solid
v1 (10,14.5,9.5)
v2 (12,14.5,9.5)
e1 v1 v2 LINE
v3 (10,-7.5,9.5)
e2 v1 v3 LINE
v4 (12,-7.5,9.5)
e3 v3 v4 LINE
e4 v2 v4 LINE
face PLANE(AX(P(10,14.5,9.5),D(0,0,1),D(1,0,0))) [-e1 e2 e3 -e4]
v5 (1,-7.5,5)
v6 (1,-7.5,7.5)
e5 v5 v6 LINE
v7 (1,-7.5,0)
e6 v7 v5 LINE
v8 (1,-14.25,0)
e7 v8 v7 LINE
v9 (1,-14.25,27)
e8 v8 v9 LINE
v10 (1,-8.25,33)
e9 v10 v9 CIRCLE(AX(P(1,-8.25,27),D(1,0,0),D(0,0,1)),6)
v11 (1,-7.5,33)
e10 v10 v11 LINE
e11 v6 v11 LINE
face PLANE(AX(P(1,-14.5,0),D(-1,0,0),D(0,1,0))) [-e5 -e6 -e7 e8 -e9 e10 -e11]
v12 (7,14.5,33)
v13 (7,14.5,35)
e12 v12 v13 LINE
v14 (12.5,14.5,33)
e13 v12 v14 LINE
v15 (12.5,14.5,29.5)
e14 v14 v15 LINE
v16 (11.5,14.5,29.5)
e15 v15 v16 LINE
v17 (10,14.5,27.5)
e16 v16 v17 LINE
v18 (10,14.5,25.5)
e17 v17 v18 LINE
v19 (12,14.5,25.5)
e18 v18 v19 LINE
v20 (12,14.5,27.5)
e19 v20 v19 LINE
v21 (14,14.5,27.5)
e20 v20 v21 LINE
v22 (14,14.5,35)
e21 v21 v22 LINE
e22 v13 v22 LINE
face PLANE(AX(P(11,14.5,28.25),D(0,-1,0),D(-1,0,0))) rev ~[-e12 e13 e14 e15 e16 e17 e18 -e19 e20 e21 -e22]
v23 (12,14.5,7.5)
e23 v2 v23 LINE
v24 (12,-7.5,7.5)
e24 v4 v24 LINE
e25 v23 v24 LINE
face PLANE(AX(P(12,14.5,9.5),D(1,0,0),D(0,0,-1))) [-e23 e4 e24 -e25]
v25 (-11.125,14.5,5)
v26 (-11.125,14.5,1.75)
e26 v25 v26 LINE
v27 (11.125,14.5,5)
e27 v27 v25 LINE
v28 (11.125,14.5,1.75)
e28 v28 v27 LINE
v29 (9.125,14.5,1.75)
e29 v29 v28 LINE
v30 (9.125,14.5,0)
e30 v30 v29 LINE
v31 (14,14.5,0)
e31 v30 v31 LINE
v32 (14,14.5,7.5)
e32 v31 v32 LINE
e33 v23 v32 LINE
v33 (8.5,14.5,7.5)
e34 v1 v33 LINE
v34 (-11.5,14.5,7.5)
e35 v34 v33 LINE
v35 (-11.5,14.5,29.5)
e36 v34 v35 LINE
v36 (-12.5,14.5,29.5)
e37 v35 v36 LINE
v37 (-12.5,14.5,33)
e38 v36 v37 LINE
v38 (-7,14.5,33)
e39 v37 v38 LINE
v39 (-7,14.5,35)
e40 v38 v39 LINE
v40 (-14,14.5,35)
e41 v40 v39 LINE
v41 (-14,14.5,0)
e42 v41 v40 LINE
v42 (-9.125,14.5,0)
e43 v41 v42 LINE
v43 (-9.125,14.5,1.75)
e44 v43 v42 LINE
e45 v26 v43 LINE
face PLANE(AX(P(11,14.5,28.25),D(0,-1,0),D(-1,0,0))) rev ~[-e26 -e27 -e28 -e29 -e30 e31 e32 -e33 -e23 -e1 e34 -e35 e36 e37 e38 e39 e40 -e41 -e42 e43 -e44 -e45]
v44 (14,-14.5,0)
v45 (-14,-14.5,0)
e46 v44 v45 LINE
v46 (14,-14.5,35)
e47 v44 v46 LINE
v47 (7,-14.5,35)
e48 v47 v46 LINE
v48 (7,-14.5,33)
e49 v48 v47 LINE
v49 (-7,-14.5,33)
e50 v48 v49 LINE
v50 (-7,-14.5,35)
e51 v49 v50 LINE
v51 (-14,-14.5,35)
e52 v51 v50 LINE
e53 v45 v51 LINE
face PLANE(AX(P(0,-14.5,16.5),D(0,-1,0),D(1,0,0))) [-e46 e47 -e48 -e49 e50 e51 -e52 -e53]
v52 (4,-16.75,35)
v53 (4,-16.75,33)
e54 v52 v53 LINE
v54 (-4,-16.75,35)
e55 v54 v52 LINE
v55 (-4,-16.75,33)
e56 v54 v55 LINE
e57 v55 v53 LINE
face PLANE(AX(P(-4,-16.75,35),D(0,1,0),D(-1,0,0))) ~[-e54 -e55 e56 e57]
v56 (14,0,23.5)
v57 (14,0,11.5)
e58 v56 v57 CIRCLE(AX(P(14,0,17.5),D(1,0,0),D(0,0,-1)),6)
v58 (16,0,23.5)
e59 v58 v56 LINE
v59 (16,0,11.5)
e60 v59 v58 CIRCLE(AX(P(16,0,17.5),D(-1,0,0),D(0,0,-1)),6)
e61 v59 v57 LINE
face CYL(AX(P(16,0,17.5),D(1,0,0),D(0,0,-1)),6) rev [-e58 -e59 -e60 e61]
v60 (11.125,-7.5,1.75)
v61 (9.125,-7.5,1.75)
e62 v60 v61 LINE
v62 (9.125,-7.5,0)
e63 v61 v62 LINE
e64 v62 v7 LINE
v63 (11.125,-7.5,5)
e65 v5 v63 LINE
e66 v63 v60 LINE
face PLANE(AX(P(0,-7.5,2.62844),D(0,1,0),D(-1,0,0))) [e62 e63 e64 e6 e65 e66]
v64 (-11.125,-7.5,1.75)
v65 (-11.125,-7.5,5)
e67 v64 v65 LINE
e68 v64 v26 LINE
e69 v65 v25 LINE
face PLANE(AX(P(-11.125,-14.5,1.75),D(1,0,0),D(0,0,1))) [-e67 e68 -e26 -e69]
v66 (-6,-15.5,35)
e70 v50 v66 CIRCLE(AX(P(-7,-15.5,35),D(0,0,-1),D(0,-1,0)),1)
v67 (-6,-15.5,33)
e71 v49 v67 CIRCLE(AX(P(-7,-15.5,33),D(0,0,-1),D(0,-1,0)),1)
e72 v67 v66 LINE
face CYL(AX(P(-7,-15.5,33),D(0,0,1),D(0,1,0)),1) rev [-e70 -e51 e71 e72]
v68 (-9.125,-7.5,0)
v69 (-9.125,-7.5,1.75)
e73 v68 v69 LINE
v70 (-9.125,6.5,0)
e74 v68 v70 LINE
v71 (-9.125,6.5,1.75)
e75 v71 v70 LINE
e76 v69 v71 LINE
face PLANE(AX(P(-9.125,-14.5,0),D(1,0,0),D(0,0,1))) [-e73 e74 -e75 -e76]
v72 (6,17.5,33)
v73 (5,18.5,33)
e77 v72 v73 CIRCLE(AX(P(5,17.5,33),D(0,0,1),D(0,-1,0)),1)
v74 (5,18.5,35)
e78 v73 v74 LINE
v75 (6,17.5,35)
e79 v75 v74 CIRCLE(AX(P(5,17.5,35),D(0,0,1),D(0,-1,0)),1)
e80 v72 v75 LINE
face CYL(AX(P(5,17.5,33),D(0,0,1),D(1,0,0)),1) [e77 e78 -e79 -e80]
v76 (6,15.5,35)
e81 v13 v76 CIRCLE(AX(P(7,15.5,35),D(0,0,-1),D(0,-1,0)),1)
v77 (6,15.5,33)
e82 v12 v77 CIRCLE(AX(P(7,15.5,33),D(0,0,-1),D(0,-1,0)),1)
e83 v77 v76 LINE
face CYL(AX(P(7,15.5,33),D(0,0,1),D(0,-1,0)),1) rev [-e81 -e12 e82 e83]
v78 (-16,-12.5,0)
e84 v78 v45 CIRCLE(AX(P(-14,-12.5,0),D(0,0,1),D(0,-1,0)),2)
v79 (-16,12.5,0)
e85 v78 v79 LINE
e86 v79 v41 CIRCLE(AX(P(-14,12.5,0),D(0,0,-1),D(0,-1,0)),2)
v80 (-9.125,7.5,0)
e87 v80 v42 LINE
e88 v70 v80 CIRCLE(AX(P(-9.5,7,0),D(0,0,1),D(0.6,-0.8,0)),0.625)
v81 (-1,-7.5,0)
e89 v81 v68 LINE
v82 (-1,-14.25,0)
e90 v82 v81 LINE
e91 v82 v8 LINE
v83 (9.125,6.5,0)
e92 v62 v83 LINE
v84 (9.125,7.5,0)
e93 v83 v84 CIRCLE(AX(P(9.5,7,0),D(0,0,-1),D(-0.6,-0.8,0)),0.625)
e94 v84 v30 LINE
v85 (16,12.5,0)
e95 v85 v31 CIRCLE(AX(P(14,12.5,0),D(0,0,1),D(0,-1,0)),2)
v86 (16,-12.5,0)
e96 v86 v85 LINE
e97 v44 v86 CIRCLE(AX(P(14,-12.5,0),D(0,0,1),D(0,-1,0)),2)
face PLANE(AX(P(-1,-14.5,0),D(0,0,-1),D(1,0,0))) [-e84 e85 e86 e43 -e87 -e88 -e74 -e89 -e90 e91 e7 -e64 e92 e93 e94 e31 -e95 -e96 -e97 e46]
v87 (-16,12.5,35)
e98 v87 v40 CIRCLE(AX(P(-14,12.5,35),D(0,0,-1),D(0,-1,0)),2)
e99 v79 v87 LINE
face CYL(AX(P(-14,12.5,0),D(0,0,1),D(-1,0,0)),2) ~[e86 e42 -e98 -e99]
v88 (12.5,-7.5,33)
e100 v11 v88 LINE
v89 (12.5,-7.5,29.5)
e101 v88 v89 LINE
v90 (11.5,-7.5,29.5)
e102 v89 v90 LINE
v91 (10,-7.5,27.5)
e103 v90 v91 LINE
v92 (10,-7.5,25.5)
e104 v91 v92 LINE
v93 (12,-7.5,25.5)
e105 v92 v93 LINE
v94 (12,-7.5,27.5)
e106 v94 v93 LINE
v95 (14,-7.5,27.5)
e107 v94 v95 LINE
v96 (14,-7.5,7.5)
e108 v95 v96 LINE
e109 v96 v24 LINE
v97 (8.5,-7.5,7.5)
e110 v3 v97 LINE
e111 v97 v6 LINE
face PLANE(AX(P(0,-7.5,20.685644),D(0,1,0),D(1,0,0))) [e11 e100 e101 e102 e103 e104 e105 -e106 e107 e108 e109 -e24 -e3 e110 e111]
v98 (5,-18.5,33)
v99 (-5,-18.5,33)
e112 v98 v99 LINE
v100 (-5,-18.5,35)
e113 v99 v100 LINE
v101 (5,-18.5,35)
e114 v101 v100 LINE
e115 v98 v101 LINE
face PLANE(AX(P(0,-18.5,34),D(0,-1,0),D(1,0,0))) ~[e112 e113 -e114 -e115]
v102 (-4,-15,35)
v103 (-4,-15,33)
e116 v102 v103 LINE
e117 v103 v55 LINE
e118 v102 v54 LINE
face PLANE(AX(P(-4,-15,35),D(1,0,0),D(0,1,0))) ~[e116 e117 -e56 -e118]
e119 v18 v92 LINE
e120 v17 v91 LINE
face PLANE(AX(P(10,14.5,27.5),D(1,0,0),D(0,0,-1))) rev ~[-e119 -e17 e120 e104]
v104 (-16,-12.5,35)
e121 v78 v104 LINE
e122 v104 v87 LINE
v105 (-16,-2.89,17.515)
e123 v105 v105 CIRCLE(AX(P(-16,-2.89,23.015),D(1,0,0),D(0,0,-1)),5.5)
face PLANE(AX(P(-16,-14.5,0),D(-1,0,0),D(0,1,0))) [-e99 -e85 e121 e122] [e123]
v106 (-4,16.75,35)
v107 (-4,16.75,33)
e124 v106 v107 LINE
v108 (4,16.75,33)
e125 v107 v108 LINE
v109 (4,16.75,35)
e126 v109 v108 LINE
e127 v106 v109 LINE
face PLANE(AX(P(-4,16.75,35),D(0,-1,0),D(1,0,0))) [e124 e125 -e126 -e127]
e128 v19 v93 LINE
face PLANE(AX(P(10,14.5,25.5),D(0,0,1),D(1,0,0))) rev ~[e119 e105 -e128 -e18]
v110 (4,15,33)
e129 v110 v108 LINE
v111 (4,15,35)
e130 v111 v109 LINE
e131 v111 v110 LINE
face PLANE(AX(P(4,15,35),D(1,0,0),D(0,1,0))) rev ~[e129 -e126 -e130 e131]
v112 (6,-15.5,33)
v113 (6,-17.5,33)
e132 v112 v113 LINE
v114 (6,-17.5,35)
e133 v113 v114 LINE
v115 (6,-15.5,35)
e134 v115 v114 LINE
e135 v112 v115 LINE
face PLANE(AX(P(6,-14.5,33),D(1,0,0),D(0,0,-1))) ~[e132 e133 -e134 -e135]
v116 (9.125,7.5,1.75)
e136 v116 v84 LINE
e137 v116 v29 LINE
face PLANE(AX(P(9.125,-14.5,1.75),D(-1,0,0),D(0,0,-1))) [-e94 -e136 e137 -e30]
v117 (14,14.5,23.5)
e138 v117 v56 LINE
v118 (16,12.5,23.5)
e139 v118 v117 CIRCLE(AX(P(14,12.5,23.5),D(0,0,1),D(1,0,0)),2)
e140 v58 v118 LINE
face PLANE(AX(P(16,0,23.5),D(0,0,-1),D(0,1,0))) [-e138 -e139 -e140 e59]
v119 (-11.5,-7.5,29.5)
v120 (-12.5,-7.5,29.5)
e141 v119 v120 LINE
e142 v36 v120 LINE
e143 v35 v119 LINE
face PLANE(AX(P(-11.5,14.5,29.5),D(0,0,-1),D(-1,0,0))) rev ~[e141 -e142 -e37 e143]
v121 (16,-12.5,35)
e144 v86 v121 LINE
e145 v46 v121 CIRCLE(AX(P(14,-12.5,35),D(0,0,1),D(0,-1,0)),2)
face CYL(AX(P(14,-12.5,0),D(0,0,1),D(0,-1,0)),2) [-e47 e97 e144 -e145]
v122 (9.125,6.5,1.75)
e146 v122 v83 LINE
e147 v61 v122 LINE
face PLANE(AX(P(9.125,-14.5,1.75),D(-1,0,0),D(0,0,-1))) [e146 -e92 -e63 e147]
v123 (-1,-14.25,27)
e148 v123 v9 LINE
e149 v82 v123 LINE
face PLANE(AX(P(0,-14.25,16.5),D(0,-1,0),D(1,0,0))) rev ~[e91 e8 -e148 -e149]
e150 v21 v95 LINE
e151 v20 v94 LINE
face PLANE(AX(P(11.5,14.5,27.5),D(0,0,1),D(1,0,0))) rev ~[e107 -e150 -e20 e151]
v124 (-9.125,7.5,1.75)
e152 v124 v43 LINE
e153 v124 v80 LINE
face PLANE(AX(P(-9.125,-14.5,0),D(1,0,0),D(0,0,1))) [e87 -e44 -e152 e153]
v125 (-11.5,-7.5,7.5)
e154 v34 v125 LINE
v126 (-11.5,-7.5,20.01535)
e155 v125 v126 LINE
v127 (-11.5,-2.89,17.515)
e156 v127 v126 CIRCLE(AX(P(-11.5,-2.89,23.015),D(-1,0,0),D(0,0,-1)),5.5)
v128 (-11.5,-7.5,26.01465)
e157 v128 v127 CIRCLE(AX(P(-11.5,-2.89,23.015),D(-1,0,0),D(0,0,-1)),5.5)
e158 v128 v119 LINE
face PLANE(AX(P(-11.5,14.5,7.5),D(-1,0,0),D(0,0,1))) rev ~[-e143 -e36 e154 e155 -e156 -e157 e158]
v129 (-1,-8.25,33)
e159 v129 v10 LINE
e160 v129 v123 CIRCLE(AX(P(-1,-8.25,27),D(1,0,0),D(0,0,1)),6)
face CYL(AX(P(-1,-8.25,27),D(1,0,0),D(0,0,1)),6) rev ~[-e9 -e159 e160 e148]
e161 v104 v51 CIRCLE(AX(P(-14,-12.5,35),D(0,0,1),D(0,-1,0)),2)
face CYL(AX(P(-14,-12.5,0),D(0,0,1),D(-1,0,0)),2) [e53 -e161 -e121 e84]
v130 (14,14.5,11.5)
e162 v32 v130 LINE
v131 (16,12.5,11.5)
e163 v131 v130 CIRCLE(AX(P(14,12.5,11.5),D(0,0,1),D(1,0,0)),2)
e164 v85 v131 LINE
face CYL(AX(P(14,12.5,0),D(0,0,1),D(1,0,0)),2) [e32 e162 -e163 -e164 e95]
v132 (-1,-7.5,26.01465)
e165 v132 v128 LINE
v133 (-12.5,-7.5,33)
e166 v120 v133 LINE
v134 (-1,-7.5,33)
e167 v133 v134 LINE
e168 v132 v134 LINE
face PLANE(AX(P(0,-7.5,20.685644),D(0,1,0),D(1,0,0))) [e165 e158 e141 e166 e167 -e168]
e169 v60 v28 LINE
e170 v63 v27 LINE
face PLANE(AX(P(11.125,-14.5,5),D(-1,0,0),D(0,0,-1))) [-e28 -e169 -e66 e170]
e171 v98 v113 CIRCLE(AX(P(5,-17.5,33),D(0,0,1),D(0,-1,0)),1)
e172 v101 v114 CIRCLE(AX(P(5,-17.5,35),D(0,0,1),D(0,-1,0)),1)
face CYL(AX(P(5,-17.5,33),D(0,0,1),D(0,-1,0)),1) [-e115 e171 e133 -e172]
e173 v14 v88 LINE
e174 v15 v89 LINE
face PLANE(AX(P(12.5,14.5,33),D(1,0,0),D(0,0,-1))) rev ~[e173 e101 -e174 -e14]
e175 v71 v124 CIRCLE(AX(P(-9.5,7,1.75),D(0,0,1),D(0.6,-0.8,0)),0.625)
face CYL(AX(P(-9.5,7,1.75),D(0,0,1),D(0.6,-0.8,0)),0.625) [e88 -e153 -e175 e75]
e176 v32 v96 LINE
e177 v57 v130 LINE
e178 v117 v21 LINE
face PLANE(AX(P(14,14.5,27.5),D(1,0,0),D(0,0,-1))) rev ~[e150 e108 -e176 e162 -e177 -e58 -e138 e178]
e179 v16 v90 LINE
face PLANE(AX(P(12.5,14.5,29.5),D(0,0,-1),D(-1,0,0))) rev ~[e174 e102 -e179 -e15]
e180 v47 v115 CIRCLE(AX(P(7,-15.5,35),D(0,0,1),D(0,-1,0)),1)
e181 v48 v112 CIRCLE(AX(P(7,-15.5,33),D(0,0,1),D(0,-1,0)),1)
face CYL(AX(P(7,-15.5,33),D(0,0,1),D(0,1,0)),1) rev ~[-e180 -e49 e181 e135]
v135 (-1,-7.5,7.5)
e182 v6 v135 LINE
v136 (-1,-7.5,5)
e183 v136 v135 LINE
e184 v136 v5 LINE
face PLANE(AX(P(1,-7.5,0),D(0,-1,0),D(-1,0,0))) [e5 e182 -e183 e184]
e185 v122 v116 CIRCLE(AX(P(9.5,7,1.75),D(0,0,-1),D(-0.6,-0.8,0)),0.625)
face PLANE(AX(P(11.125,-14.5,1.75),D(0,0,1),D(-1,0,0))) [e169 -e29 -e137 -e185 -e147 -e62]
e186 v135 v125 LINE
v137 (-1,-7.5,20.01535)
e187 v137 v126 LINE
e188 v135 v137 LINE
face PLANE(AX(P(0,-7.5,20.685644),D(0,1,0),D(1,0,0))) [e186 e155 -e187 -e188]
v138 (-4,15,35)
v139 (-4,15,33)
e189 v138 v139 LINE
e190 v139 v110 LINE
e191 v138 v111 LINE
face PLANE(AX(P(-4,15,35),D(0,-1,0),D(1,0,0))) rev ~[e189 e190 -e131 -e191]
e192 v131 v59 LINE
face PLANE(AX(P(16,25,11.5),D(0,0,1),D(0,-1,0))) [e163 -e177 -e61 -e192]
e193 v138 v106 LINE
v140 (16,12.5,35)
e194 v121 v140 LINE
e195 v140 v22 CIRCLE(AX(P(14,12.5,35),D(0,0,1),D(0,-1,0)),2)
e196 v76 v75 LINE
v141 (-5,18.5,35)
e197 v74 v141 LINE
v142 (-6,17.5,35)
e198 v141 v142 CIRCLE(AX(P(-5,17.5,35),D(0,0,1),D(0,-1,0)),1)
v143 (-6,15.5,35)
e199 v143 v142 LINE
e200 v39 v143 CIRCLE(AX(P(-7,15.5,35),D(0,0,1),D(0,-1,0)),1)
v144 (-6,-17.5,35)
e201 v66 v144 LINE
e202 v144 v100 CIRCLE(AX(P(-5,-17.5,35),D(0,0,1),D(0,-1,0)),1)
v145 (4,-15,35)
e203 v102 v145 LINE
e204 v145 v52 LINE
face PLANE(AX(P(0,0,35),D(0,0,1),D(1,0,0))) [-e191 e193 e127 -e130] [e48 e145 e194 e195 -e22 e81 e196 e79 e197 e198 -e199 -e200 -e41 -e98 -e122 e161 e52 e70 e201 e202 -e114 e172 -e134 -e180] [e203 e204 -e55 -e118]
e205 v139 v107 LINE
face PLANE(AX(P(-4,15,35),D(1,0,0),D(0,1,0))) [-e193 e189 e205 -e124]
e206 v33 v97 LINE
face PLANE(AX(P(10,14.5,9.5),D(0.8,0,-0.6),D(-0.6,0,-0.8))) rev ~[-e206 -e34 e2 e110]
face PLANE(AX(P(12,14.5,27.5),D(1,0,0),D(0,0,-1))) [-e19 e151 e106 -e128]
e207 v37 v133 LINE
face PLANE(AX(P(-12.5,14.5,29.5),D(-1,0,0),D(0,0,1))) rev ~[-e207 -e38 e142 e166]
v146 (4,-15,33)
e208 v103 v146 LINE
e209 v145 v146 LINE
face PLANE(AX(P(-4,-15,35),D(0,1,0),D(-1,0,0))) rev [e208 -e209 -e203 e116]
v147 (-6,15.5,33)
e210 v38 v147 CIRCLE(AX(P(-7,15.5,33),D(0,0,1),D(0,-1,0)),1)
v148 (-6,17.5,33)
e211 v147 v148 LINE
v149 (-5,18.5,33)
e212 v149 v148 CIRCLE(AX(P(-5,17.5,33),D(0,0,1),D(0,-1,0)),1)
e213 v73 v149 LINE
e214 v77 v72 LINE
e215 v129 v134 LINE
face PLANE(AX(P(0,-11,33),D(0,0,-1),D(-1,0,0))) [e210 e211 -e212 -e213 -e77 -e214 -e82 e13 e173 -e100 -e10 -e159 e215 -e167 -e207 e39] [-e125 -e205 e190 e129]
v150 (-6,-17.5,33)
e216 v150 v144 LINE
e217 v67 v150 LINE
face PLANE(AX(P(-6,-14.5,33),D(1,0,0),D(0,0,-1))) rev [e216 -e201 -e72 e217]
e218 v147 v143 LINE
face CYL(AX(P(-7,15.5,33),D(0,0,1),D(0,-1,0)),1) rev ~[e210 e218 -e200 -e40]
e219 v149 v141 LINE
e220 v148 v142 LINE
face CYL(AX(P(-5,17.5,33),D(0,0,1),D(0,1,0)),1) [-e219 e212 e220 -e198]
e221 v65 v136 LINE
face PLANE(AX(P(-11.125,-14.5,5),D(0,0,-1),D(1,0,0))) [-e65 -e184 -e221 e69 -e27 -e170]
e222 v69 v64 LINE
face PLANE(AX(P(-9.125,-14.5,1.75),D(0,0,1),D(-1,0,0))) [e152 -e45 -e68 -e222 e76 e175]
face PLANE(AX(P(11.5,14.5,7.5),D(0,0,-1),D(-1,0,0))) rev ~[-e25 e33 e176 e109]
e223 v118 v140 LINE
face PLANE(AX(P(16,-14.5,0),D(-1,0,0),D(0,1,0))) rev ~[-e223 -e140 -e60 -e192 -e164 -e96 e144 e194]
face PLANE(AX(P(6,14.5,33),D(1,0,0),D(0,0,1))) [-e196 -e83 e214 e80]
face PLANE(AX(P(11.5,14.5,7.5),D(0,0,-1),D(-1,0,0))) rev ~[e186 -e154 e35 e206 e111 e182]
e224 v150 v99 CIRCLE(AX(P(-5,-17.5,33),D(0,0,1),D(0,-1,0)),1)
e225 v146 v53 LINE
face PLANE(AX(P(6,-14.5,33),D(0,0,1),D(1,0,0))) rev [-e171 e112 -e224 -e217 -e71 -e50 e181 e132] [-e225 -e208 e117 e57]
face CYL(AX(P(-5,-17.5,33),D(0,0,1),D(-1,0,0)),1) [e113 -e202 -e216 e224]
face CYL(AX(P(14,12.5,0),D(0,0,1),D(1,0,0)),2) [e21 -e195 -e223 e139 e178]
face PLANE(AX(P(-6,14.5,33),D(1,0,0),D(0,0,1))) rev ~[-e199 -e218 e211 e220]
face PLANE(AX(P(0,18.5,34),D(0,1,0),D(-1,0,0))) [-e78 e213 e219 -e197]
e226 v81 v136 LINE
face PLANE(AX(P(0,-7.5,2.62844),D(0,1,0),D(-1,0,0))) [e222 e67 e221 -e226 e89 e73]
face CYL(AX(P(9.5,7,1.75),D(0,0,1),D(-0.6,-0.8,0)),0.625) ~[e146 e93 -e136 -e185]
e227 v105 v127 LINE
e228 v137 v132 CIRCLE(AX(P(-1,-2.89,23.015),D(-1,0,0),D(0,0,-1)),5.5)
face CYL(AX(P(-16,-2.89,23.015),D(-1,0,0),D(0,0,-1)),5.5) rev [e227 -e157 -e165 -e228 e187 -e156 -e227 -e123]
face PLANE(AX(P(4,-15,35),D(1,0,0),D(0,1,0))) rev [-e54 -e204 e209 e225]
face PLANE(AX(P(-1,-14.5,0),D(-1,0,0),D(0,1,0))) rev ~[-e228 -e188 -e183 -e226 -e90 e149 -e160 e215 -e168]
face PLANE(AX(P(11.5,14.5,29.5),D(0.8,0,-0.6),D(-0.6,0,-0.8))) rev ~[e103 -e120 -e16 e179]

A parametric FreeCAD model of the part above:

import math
import FreeCAD as App
import Part
import Sketcher
from FreeCAD import Vector
Q = App.Units.Quantity


def edges_at(feature, points):
    """Names of the edges that pass closest to the given points."""
    edges = feature.Shape.Edges
    near = lambda p: min(range(len(edges)), key=lambda i: edges[i].distToShape(Part.Vertex(*p))[0])
    return sorted({f"Edge{near(p) + 1}" for p in points})

doc = App.newDocument("Part")
params = doc.addObject("Spreadsheet::Sheet", "Params")
for row, (alias, value) in enumerate([
    ("sketch1_width", "32 mm"),
    ("sketch1_height", "29 mm"),
    ("pad1_length", "35 mm"),
    ("fillet_radius", "2 mm"),
    ("sketch2_width", "2 mm"),
    ("sketch2_width2", "18.25 mm"),
    ("sketch2_height", "1.75 mm"),
    ("sketch3_width", "2 mm"),
    ("sketch3_width2", "18.25 mm"),
    ("sketch3_height", "1.75 mm"),
    ("pad2_length", "7 mm"),
    ("sketch4_height", "1 mm"),
    ("pad3_length", "1.75 mm"),
    ("sketch5_width", "2 mm"),
    ("sketch5_height", "7 mm"),
    ("pocket2_length", "33 mm"),
    ("sketch6_width", "23 mm"),
    ("sketch6_width2", "1 mm"),
    ("sketch6_height", "22 mm"),
    ("sketch6_height2", "3.5 mm"),
    ("pocket3_length", "22 mm"),
    ("sketch7_width", "2 mm"),
    ("sketch7_height", "33 mm"),
    ("pad4_length", "0.25 mm"),
    ("fillet2_radius", "6 mm"),
    ("sketch8_radius", "6 mm"),
    ("sketch8_width", "25 mm"),
    ("sketch9_height", "20 mm"),
    ("sketch9_width", "2.5 mm"),
    ("pocket5_length", "22 mm"),
    ("sketch10_width", "2 mm"),
    ("pad5_length", "22 mm"),
    ("sketch11_height", "2 mm"),
    ("sketch11_width", "1.5 mm"),
    ("pad6_length", "22 mm"),
    ("sketch12_width", "12 mm"),
    ("sketch12_height", "2 mm"),
    ("pad7_length", "4 mm"),
    ("sketch13_width", "8 mm"),
    ("sketch13_height", "1.75 mm"),
    ("pocket6_length", "2 mm"),
    ("fillet3_radius", "1 mm"),
    ("sketch14_diameter", "11 mm"),
    ("pocket7_length", "15 mm"),
], start=1):
    params.set(f"A{row}", alias)
    params.set(f"B{row}", "=" + value)
    params.setAlias(f"B{row}", alias)

body = doc.addObject("PartDesign::Body", "Body")

# Sketch on XY plane
sketch1 = doc.addObject("Sketcher::SketchObject", "Sketch")
body.addObject(sketch1)
sketch1.AttachmentSupport = (doc.XY_Plane, [""])
sketch1.MapMode = "FlatFace"
sketch1.addGeometry(Part.LineSegment(Vector(-16, 14, 0), Vector(-16, -14, 0)), False)
sketch1.addGeometry(Part.LineSegment(Vector(-16, -14, 0), Vector(16, -14, 0)), False)
sketch1.addGeometry(Part.LineSegment(Vector(16, -14, 0), Vector(16, 14, 0)), False)
sketch1.addGeometry(Part.LineSegment(Vector(16, 14, 0), Vector(-16, 14, 0)), False)
sketch1.addConstraint(Sketcher.Constraint("Coincident", 0, 2, 1, 1))
sketch1.addConstraint(Sketcher.Constraint("Coincident", 1, 2, 2, 1))
sketch1.addConstraint(Sketcher.Constraint("Coincident", 2, 2, 3, 1))
sketch1.addConstraint(Sketcher.Constraint("Coincident", 3, 2, 0, 1))
sketch1.addConstraint(Sketcher.Constraint("Vertical", 0))
sketch1.addConstraint(Sketcher.Constraint("Horizontal", 1))
sketch1.addConstraint(Sketcher.Constraint("Vertical", 2))
sketch1.addConstraint(Sketcher.Constraint("Horizontal", 3))
sketch1.addConstraint(Sketcher.Constraint("Symmetric", 0, 2, 2, 2, -1, 1))
sketch1.addConstraint(Sketcher.Constraint("DistanceX", 1, 1, 1, 2, Q("32 mm")))
sketch1.addConstraint(Sketcher.Constraint("DistanceY", 0, 2, 0, 1, Q("29 mm")))
sketch1.setExpression("Constraints[9]", "Params.sketch1_width")
sketch1.setExpression("Constraints[10]", "Params.sketch1_height")
pad1 = doc.addObject("PartDesign::Pad", "Pad")
body.addObject(pad1)
pad1.Profile = sketch1
pad1.setExpression("Length", "Params.pad1_length")
doc.recompute()

fillet = doc.addObject("PartDesign::Fillet", "Fillet")
body.addObject(fillet)
fillet.Base = (pad1, edges_at(pad1, [
    (16, -14.5, 17.5),
    (-16, -14.5, 17.5),
    (-16, 14.5, 17.5),
    (16, 14.5, 17.5),
]))
fillet.setExpression("Radius", "Params.fillet_radius")

# Sketch on XZ plane
sketch2 = doc.addObject("Sketcher::SketchObject", "Sketch001")
body.addObject(sketch2)
sketch2.AttachmentSupport = (doc.XZ_Plane, [""])
sketch2.MapMode = "FlatFace"
sketch2.AttachmentOffset = App.Placement(Vector(0, 0, 14.5), App.Rotation())
sketch2.addGeometry(Part.LineSegment(Vector(-9.1, 1.8, 0), Vector(-9.1, 0, 0)), False)
sketch2.addGeometry(Part.LineSegment(Vector(-9.1, 0, 0), Vector(9.1, 0, 0)), False)
sketch2.addGeometry(Part.LineSegment(Vector(9.1, 0, 0), Vector(9.1, 1.8, 0)), False)
sketch2.addGeometry(Part.LineSegment(Vector(9.1, 1.8, 0), Vector(11.1, 1.8, 0)), False)
sketch2.addGeometry(Part.LineSegment(Vector(11.1, 1.8, 0), Vector(11.1, 5, 0)), False)
sketch2.addGeometry(Part.LineSegment(Vector(11.1, 5, 0), Vector(-11.1, 5, 0)), False)
sketch2.addGeometry(Part.LineSegment(Vector(-11.1, 5, 0), Vector(-11.1, 1.8, 0)), False)
sketch2.addGeometry(Part.LineSegment(Vector(-11.1, 1.8, 0), Vector(-9.1, 1.8, 0)), False)
sketch2.addConstraint(Sketcher.Constraint("Coincident", 0, 2, 1, 1))
sketch2.addConstraint(Sketcher.Constraint("Coincident", 1, 2, 2, 1))
sketch2.addConstraint(Sketcher.Constraint("Coincident", 2, 2, 3, 1))
sketch2.addConstraint(Sketcher.Constraint("Coincident", 3, 2, 4, 1))
sketch2.addConstraint(Sketcher.Constraint("Coincident", 4, 2, 5, 1))
sketch2.addConstraint(Sketcher.Constraint("Coincident", 5, 2, 6, 1))
sketch2.addConstraint(Sketcher.Constraint("Coincident", 6, 2, 7, 1))
sketch2.addConstraint(Sketcher.Constraint("Coincident", 7, 2, 0, 1))
sketch2.addConstraint(Sketcher.Constraint("Vertical", 0))
sketch2.addConstraint(Sketcher.Constraint("Horizontal", 1))
sketch2.addConstraint(Sketcher.Constraint("Vertical", 2))
sketch2.addConstraint(Sketcher.Constraint("Horizontal", 3))
sketch2.addConstraint(Sketcher.Constraint("Vertical", 4))
sketch2.addConstraint(Sketcher.Constraint("Horizontal", 5))
sketch2.addConstraint(Sketcher.Constraint("Vertical", 6))
sketch2.addConstraint(Sketcher.Constraint("Horizontal", 7))
sketch2.addConstraint(Sketcher.Constraint("Symmetric", 0, 2, 1, 2, -1, 1))
sketch2.addConstraint(Sketcher.Constraint("Symmetric", 3, 2, 6, 2, -2))
sketch2.addConstraint(Sketcher.Constraint("DistanceX", 3, 1, 3, 2, Q("2 mm")))
sketch2.addConstraint(Sketcher.Constraint("DistanceY", -1, 1, 4, 2, Q("5 mm")))
sketch2.addConstraint(Sketcher.Constraint("DistanceX", 1, 1, 1, 2, Q("18.25 mm")))
sketch2.addConstraint(Sketcher.Constraint("DistanceY", 0, 2, 0, 1, Q("1.75 mm")))
sketch2.setExpression("Constraints[18]", "Params.sketch2_width")
sketch2.setExpression("Constraints[20]", "Params.sketch2_width2")
sketch2.setExpression("Constraints[21]", "Params.sketch2_height")
pocket1 = doc.addObject("PartDesign::Pocket", "Pocket")
body.addObject(pocket1)
pocket1.Profile = sketch2
pocket1.Type = "ThroughAll"
pocket1.Midplane = True

# Sketch on XZ plane
sketch3 = doc.addObject("Sketcher::SketchObject", "Sketch002")
body.addObject(sketch3)
sketch3.AttachmentSupport = (doc.XZ_Plane, [""])
sketch3.MapMode = "FlatFace"
sketch3.AttachmentOffset = App.Placement(Vector(0, 0, 14.5), App.Rotation())
sketch3.addGeometry(Part.LineSegment(Vector(-9.1, 1.8, 0), Vector(-9.1, 0, 0)), False)
sketch3.addGeometry(Part.LineSegment(Vector(-9.1, 0, 0), Vector(9.1, 0, 0)), False)
sketch3.addGeometry(Part.LineSegment(Vector(9.1, 0, 0), Vector(9.1, 1.8, 0)), False)
sketch3.addGeometry(Part.LineSegment(Vector(9.1, 1.8, 0), Vector(11.1, 1.8, 0)), False)
sketch3.addGeometry(Part.LineSegment(Vector(11.1, 1.8, 0), Vector(11.1, 5, 0)), False)
sketch3.addGeometry(Part.LineSegment(Vector(11.1, 5, 0), Vector(-11.1, 5, 0)), False)
sketch3.addGeometry(Part.LineSegment(Vector(-11.1, 5, 0), Vector(-11.1, 1.8, 0)), False)
sketch3.addGeometry(Part.LineSegment(Vector(-11.1, 1.8, 0), Vector(-9.1, 1.8, 0)), False)
sketch3.addConstraint(Sketcher.Constraint("Coincident", 0, 2, 1, 1))
sketch3.addConstraint(Sketcher.Constraint("Coincident", 1, 2, 2, 1))
sketch3.addConstraint(Sketcher.Constraint("Coincident", 2, 2, 3, 1))
sketch3.addConstraint(Sketcher.Constraint("Coincident", 3, 2, 4, 1))
sketch3.addConstraint(Sketcher.Constraint("Coincident", 4, 2, 5, 1))
sketch3.addConstraint(Sketcher.Constraint("Coincident", 5, 2, 6, 1))
sketch3.addConstraint(Sketcher.Constraint("Coincident", 6, 2, 7, 1))
sketch3.addConstraint(Sketcher.Constraint("Coincident", 7, 2, 0, 1))
sketch3.addConstraint(Sketcher.Constraint("Vertical", 0))
sketch3.addConstraint(Sketcher.Constraint("Horizontal", 1))
sketch3.addConstraint(Sketcher.Constraint("Vertical", 2))
sketch3.addConstraint(Sketcher.Constraint("Horizontal", 3))
sketch3.addConstraint(Sketcher.Constraint("Vertical", 4))
sketch3.addConstraint(Sketcher.Constraint("Horizontal", 5))
sketch3.addConstraint(Sketcher.Constraint("Vertical", 6))
sketch3.addConstraint(Sketcher.Constraint("Horizontal", 7))
sketch3.addConstraint(Sketcher.Constraint("Symmetric", 0, 2, 1, 2, -1, 1))
sketch3.addConstraint(Sketcher.Constraint("Symmetric", 3, 2, 6, 2, -2))
sketch3.addConstraint(Sketcher.Constraint("DistanceX", 3, 1, 3, 2, Q("2 mm")))
sketch3.addConstraint(Sketcher.Constraint("DistanceY", -1, 1, 4, 2, Q("5 mm")))
sketch3.addConstraint(Sketcher.Constraint("DistanceX", 1, 1, 1, 2, Q("18.25 mm")))
sketch3.addConstraint(Sketcher.Constraint("DistanceY", 0, 2, 0, 1, Q("1.75 mm")))
sketch3.setExpression("Constraints[18]", "Params.sketch3_width")
sketch3.setExpression("Constraints[20]", "Params.sketch3_width2")
sketch3.setExpression("Constraints[21]", "Params.sketch3_height")
pad2 = doc.addObject("PartDesign::Pad", "Pad001")
body.addObject(pad2)
pad2.Profile = sketch3
pad2.setExpression("Length", "Params.pad2_length")
pad2.Reversed = True

# Sketch on XY plane
sketch4 = doc.addObject("Sketcher::SketchObject", "Sketch003")
body.addObject(sketch4)
sketch4.AttachmentSupport = (doc.XY_Plane, [""])
sketch4.MapMode = "FlatFace"
sketch4.AttachmentOffset = App.Placement(Vector(0, 0, 1.75), App.Rotation())
sketch4.addGeometry(Part.LineSegment(Vector(9.1, 7.5, 0), Vector(9.1, 6.5, 0)), False)
sketch4.addGeometry(Part.ArcOfCircle(Part.Circle(Vector(9.5, 7, 0), Vector(0, 0, 1), 0.6), math.radians(127), math.radians(233)), False)
sketch4.addConstraint(Sketcher.Constraint("Coincident", 0, 1, 1, 1))
sketch4.addConstraint(Sketcher.Constraint("Coincident", 1, 2, 0, 2))
sketch4.addConstraint(Sketcher.Constraint("Vertical", 0))
sketch4.addConstraint(Sketcher.Constraint("DistanceY", 0, 2, 0, 1, Q("1 mm")))
sketch4.addConstraint(Sketcher.Constraint("DistanceY", -1, 1, 1, 3, Q("7 mm")))
sketch4.addConstraint(Sketcher.Constraint("Radius", 1, Q("0.625 mm")))
sketch4.addConstraint(Sketcher.Constraint("DistanceX", -1, 1, 1, 3, Q("9.5 mm")))
sketch4.setExpression("Constraints[3]", "Params.sketch4_height")
pad3 = doc.addObject("PartDesign::Pad", "Pad002")
body.addObject(pad3)
pad3.Profile = sketch4
pad3.setExpression("Length", "Params.pad3_length")
pad3.Reversed = True
doc.recompute()

mirrored = doc.addObject("PartDesign::Mirrored", "Mirrored")
body.addObject(mirrored)
mirrored.Originals = [pad3]
mirrored.MirrorPlane = (doc.YZ_Plane, [""])
body.Tip = mirrored

# Sketch on XY plane
sketch5 = doc.addObject("Sketcher::SketchObject", "Sketch004")
body.addObject(sketch5)
sketch5.AttachmentSupport = (doc.XY_Plane, [""])
sketch5.MapMode = "FlatFace"
sketch5.addGeometry(Part.LineSegment(Vector(1, -7.5, 0), Vector(1, -14.5, 0)), False)
sketch5.addGeometry(Part.LineSegment(Vector(1, -14.5, 0), Vector(-1, -14.5, 0)), False)
sketch5.addGeometry(Part.LineSegment(Vector(-1, -14.5, 0), Vector(-1, -7.5, 0)), False)
sketch5.addGeometry(Part.LineSegment(Vector(-1, -7.5, 0), Vector(1, -7.5, 0)), False)
sketch5.addConstraint(Sketcher.Constraint("Coincident", 0, 2, 1, 1))
sketch5.addConstraint(Sketcher.Constraint("Coincident", 1, 2, 2, 1))
sketch5.addConstraint(Sketcher.Constraint("Coincident", 2, 2, 3, 1))
sketch5.addConstraint(Sketcher.Constraint("Coincident", 3, 2, 0, 1))
sketch5.addConstraint(Sketcher.Constraint("Vertical", 0))
sketch5.addConstraint(Sketcher.Constraint("Horizontal", 1))
sketch5.addConstraint(Sketcher.Constraint("Vertical", 2))
sketch5.addConstraint(Sketcher.Constraint("Horizontal", 3))
sketch5.addConstraint(Sketcher.Constraint("DistanceX", 1, 2, 1, 1, Q("2 mm")))
sketch5.addConstraint(Sketcher.Constraint("DistanceY", 0, 2, 0, 1, Q("7 mm")))
sketch5.addConstraint(Sketcher.Constraint("DistanceX", -1, 1, 0, 2, Q("1 mm")))
sketch5.addConstraint(Sketcher.Constraint("DistanceY", 0, 2, -1, 1, Q("14.5 mm")))
sketch5.setExpression("Constraints[8]", "Params.sketch5_width")
sketch5.setExpression("Constraints[9]", "Params.sketch5_height")
pocket2 = doc.addObject("PartDesign::Pocket", "Pocket001")
body.addObject(pocket2)
pocket2.Profile = sketch5
pocket2.setExpression("Length", "Params.pocket2_length")
pocket2.Reversed = True

# Sketch on XZ plane
sketch6 = doc.addObject("Sketcher::SketchObject", "Sketch005")
body.addObject(sketch6)
sketch6.AttachmentSupport = (doc.XZ_Plane, [""])
sketch6.MapMode = "FlatFace"
sketch6.AttachmentOffset = App.Placement(Vector(0, 0, -14.5), App.Rotation())
sketch6.addGeometry(Part.LineSegment(Vector(11.5, 7.5, 0), Vector(-11.5, 7.5, 0)), False)
sketch6.addGeometry(Part.LineSegment(Vector(-11.5, 7.5, 0), Vector(-11.5, 29.5, 0)), False)
sketch6.addGeometry(Part.LineSegment(Vector(-11.5, 29.5, 0), Vector(-12.5, 29.5, 0)), False)
sketch6.addGeometry(Part.LineSegment(Vector(-12.5, 29.5, 0), Vector(-12.5, 33, 0)), False)
sketch6.addGeometry(Part.LineSegment(Vector(-12.5, 33, 0), Vector(12.5, 33, 0)), False)
sketch6.addGeometry(Part.LineSegment(Vector(12.5, 33, 0), Vector(12.5, 29.5, 0)), False)
sketch6.addGeometry(Part.LineSegment(Vector(12.5, 29.5, 0), Vector(11.5, 29.5, 0)), False)
sketch6.addGeometry(Part.LineSegment(Vector(11.5, 29.5, 0), Vector(11.5, 7.5, 0)), False)
sketch6.addConstraint(Sketcher.Constraint("Coincident", 0, 2, 1, 1))
sketch6.addConstraint(Sketcher.Constraint("Coincident", 1, 2, 2, 1))
sketch6.addConstraint(Sketcher.Constraint("Coincident", 2, 2, 3, 1))
sketch6.addConstraint(Sketcher.Constraint("Coincident", 3, 2, 4, 1))
sketch6.addConstraint(Sketcher.Constraint("Coincident", 4, 2, 5, 1))
sketch6.addConstraint(Sketcher.Constraint("Coincident", 5, 2, 6, 1))
sketch6.addConstraint(Sketcher.Constraint("Coincident", 6, 2, 7, 1))
sketch6.addConstraint(Sketcher.Constraint("Coincident", 7, 2, 0, 1))
sketch6.addConstraint(Sketcher.Constraint("Horizontal", 0))
sketch6.addConstraint(Sketcher.Constraint("Vertical", 1))
sketch6.addConstraint(Sketcher.Constraint("Horizontal", 2))
sketch6.addConstraint(Sketcher.Constraint("Vertical", 3))
sketch6.addConstraint(Sketcher.Constraint("Horizontal", 4))
sketch6.addConstraint(Sketcher.Constraint("Vertical", 5))
sketch6.addConstraint(Sketcher.Constraint("Horizontal", 6))
sketch6.addConstraint(Sketcher.Constraint("Vertical", 7))
sketch6.addConstraint(Sketcher.Constraint("Symmetric", 2, 2, 5, 2, -2))
sketch6.addConstraint(Sketcher.Constraint("Equal", 2, 6))
sketch6.addConstraint(Sketcher.Constraint("DistanceX", 0, 2, 0, 1, Q("23 mm")))
sketch6.addConstraint(Sketcher.Constraint("DistanceX", 2, 2, 2, 1, Q("1 mm")))
sketch6.addConstraint(Sketcher.Constraint("DistanceY", 1, 1, 1, 2, Q("22 mm")))
sketch6.addConstraint(Sketcher.Constraint("DistanceY", 3, 1, 3, 2, Q("3.5 mm")))
sketch6.addConstraint(Sketcher.Constraint("DistanceY", -1, 1, 3, 2, Q("33 mm")))
sketch6.setExpression("Constraints[18]", "Params.sketch6_width")
sketch6.setExpression("Constraints[19]", "Params.sketch6_width2")
sketch6.setExpression("Constraints[20]", "Params.sketch6_height")
sketch6.setExpression("Constraints[21]", "Params.sketch6_height2")
pocket3 = doc.addObject("PartDesign::Pocket", "Pocket002")
body.addObject(pocket3)
pocket3.Profile = sketch6
pocket3.setExpression("Length", "Params.pocket3_length")
pocket3.Reversed = True

# Sketch on XZ plane
sketch7 = doc.addObject("Sketcher::SketchObject", "Sketch006")
body.addObject(sketch7)
sketch7.AttachmentSupport = (doc.XZ_Plane, [""])
sketch7.MapMode = "FlatFace"
sketch7.AttachmentOffset = App.Placement(Vector(0, 0, 14.5), App.Rotation())
sketch7.addGeometry(Part.LineSegment(Vector(-1, 33, 0), Vector(-1, 0, 0)), False)
sketch7.addGeometry(Part.LineSegment(Vector(-1, 0, 0), Vector(1, 0, 0)), False)
sketch7.addGeometry(Part.LineSegment(Vector(1, 0, 0), Vector(1, 33, 0)), False)
sketch7.addGeometry(Part.LineSegment(Vector(1, 33, 0), Vector(-1, 33, 0)), False)
sketch7.addConstraint(Sketcher.Constraint("Coincident", 0, 2, 1, 1))
sketch7.addConstraint(Sketcher.Constraint("Coincident", 1, 2, 2, 1))
sketch7.addConstraint(Sketcher.Constraint("Coincident", 2, 2, 3, 1))
sketch7.addConstraint(Sketcher.Constraint("Coincident", 3, 2, 0, 1))
sketch7.addConstraint(Sketcher.Constraint("Vertical", 0))
sketch7.addConstraint(Sketcher.Constraint("Horizontal", 1))
sketch7.addConstraint(Sketcher.Constraint("Vertical", 2))
sketch7.addConstraint(Sketcher.Constraint("Horizontal", 3))
sketch7.addConstraint(Sketcher.Constraint("Symmetric", 0, 2, 1, 2, -1, 1))
sketch7.addConstraint(Sketcher.Constraint("DistanceX", 1, 1, 1, 2, Q("2 mm")))
sketch7.addConstraint(Sketcher.Constraint("DistanceY", 0, 2, 0, 1, Q("33 mm")))
sketch7.setExpression("Constraints[9]", "Params.sketch7_width")
sketch7.setExpression("Constraints[10]", "Params.sketch7_height")
pad4 = doc.addObject("PartDesign::Pad", "Pad003")
body.addObject(pad4)
pad4.Profile = sketch7
pad4.setExpression("Length", "Params.pad4_length")
pad4.Reversed = True
doc.recompute()

fillet2 = doc.addObject("PartDesign::Fillet", "Fillet001")
body.addObject(fillet2)
fillet2.Base = (pad4, edges_at(pad4, [(0, -14.25, 33)]))
fillet2.setExpression("Radius", "Params.fillet2_radius")

# Sketch on YZ plane
sketch8 = doc.addObject("Sketcher::SketchObject", "Sketch007")
body.addObject(sketch8)
sketch8.AttachmentSupport = (doc.YZ_Plane, [""])
sketch8.MapMode = "FlatFace"
sketch8.AttachmentOffset = App.Placement(Vector(0, 0, 16), App.Rotation())
sketch8.addGeometry(Part.LineSegment(Vector(0, 12, 0), Vector(25, 12, 0)), False)
sketch8.addGeometry(Part.ArcOfCircle(Part.Circle(Vector(25, 18, 0), Vector(0, 0, 1), 6), math.radians(-90), math.radians(90)), False)
sketch8.addGeometry(Part.LineSegment(Vector(25, 24, 0), Vector(0, 24, 0)), False)
sketch8.addGeometry(Part.ArcOfCircle(Part.Circle(Vector(0, 18, 0), Vector(0, 0, 1), 6), math.radians(90), math.radians(270)), False)
sketch8.addConstraint(Sketcher.Constraint("Tangent", 0, 2, 1, 1))
sketch8.addConstraint(Sketcher.Constraint("Tangent", 1, 2, 2, 1))
sketch8.addConstraint(Sketcher.Constraint("Tangent", 2, 2, 3, 1))
sketch8.addConstraint(Sketcher.Constraint("Tangent", 3, 2, 0, 1))
sketch8.addConstraint(Sketcher.Constraint("Horizontal", 0))
sketch8.addConstraint(Sketcher.Constraint("Horizontal", 2))
sketch8.addConstraint(Sketcher.Constraint("PointOnObject", 3, 3, -2))
sketch8.addConstraint(Sketcher.Constraint("Radius", 1, Q("6 mm")))
sketch8.addConstraint(Sketcher.Constraint("DistanceX", 0, 1, 0, 2, Q("25 mm")))
sketch8.addConstraint(Sketcher.Constraint("DistanceY", -1, 1, 1, 3, Q("17.5 mm")))
sketch8.setExpression("Constraints[7]", "Params.sketch8_radius")
sketch8.setExpression("Constraints[8]", "Params.sketch8_width")
pocket4 = doc.addObject("PartDesign::Pocket", "Pocket003")
body.addObject(pocket4)
pocket4.Profile = sketch8
pocket4.Type = "UpToFirst"

# Sketch on XZ plane
sketch9 = doc.addObject("Sketcher::SketchObject", "Sketch008")
body.addObject(sketch9)
sketch9.AttachmentSupport = (doc.XZ_Plane, [""])
sketch9.MapMode = "FlatFace"
sketch9.AttachmentOffset = App.Placement(Vector(0, 0, -14.5), App.Rotation())
sketch9.addGeometry(Part.LineSegment(Vector(11.5, 7.5, 0), Vector(11.5, 27.5, 0)), False)
sketch9.addGeometry(Part.LineSegment(Vector(11.5, 27.5, 0), Vector(14, 27.5, 0)), False)
sketch9.addGeometry(Part.LineSegment(Vector(14, 27.5, 0), Vector(14, 7.5, 0)), False)
sketch9.addGeometry(Part.LineSegment(Vector(14, 7.5, 0), Vector(11.5, 7.5, 0)), False)
sketch9.addConstraint(Sketcher.Constraint("Coincident", 0, 2, 1, 1))
sketch9.addConstraint(Sketcher.Constraint("Coincident", 1, 2, 2, 1))
sketch9.addConstraint(Sketcher.Constraint("Coincident", 2, 2, 3, 1))
sketch9.addConstraint(Sketcher.Constraint("Coincident", 3, 2, 0, 1))
sketch9.addConstraint(Sketcher.Constraint("Vertical", 0))
sketch9.addConstraint(Sketcher.Constraint("Horizontal", 1))
sketch9.addConstraint(Sketcher.Constraint("Vertical", 2))
sketch9.addConstraint(Sketcher.Constraint("Horizontal", 3))
sketch9.addConstraint(Sketcher.Constraint("DistanceY", 0, 1, 0, 2, Q("20 mm")))
sketch9.addConstraint(Sketcher.Constraint("DistanceX", 1, 1, 1, 2, Q("2.5 mm")))
sketch9.addConstraint(Sketcher.Constraint("DistanceX", -1, 1, 1, 2, Q("14 mm")))
sketch9.addConstraint(Sketcher.Constraint("DistanceY", -1, 1, 0, 2, Q("27.5 mm")))
sketch9.setExpression("Constraints[8]", "Params.sketch9_height")
sketch9.setExpression("Constraints[9]", "Params.sketch9_width")
pocket5 = doc.addObject("PartDesign::Pocket", "Pocket004")
body.addObject(pocket5)
pocket5.Profile = sketch9
pocket5.setExpression("Length", "Params.pocket5_length")
pocket5.Reversed = True

# Sketch on XZ plane
sketch10 = doc.addObject("Sketcher::SketchObject", "Sketch009")
body.addObject(sketch10)
sketch10.AttachmentSupport = (doc.XZ_Plane, [""])
sketch10.MapMode = "FlatFace"
sketch10.AttachmentOffset = App.Placement(Vector(0, 0, -14.5), App.Rotation())
sketch10.addGeometry(Part.LineSegment(Vector(10, 7.5, 0), Vector(10, 9.5, 0)), False)
sketch10.addGeometry(Part.LineSegment(Vector(10, 9.5, 0), Vector(12, 9.5, 0)), False)
sketch10.addGeometry(Part.LineSegment(Vector(12, 9.5, 0), Vector(12, 7.5, 0)), False)
sketch10.addGeometry(Part.LineSegment(Vector(12, 7.5, 0), Vector(10, 7.5, 0)), False)
sketch10.addGeometry(Part.LineSegment(Vector(10, 25.5, 0), Vector(10, 27.5, 0)), False)
sketch10.addGeometry(Part.LineSegment(Vector(10, 27.5, 0), Vector(12, 27.5, 0)), False)
sketch10.addGeometry(Part.LineSegment(Vector(12, 27.5, 0), Vector(12, 25.5, 0)), False)
sketch10.addGeometry(Part.LineSegment(Vector(12, 25.5, 0), Vector(10, 25.5, 0)), False)
sketch10.addConstraint(Sketcher.Constraint("Coincident", 0, 2, 1, 1))
sketch10.addConstraint(Sketcher.Constraint("Coincident", 1, 2, 2, 1))
sketch10.addConstraint(Sketcher.Constraint("Coincident", 2, 2, 3, 1))
sketch10.addConstraint(Sketcher.Constraint("Coincident", 3, 2, 0, 1))
sketch10.addConstraint(Sketcher.Constraint("Coincident", 4, 2, 5, 1))
sketch10.addConstraint(Sketcher.Constraint("Coincident", 5, 2, 6, 1))
sketch10.addConstraint(Sketcher.Constraint("Coincident", 6, 2, 7, 1))
sketch10.addConstraint(Sketcher.Constraint("Coincident", 7, 2, 4, 1))
sketch10.addConstraint(Sketcher.Constraint("Vertical", 0))
sketch10.addConstraint(Sketcher.Constraint("Horizontal", 1))
sketch10.addConstraint(Sketcher.Constraint("Vertical", 2))
sketch10.addConstraint(Sketcher.Constraint("Horizontal", 3))
sketch10.addConstraint(Sketcher.Constraint("Vertical", 4))
sketch10.addConstraint(Sketcher.Constraint("Horizontal", 5))
sketch10.addConstraint(Sketcher.Constraint("Vertical", 6))
sketch10.addConstraint(Sketcher.Constraint("Horizontal", 7))
sketch10.addConstraint(Sketcher.Constraint("Vertical", 3, 2, 4, 2))
sketch10.addConstraint(Sketcher.Constraint("Vertical", 2, 2, 5, 2))
sketch10.addConstraint(Sketcher.Constraint("Equal", 7, 0))
sketch10.addConstraint(Sketcher.Constraint("Equal", 2, 4))
sketch10.addConstraint(Sketcher.Constraint("DistanceX", 1, 1, 1, 2, Q("2 mm")))
sketch10.addConstraint(Sketcher.Constraint("DistanceX", -1, 1, 0, 2, Q("10 mm")))
sketch10.addConstraint(Sketcher.Constraint("DistanceY", 0, 2, 4, 2, Q("18 mm")))
sketch10.addConstraint(Sketcher.Constraint("DistanceY", -1, 1, 0, 2, Q("9.5 mm")))
sketch10.setExpression("Constraints[20]", "Params.sketch10_width")
pad5 = doc.addObject("PartDesign::Pad", "Pad004")
body.addObject(pad5)
pad5.Profile = sketch10
pad5.setExpression("Length", "Params.pad5_length")

# Sketch on XZ plane
sketch11 = doc.addObject("Sketcher::SketchObject", "Sketch010")
body.addObject(sketch11)
sketch11.AttachmentSupport = (doc.XZ_Plane, [""])
sketch11.MapMode = "FlatFace"
sketch11.AttachmentOffset = App.Placement(Vector(0, 0, -14.5), App.Rotation())
sketch11.addGeometry(Part.LineSegment(Vector(10, 27.5, 0), Vector(11.5, 29.5, 0)), False)
sketch11.addGeometry(Part.LineSegment(Vector(11.5, 29.5, 0), Vector(11.5, 27.5, 0)), False)
sketch11.addGeometry(Part.LineSegment(Vector(11.5, 27.5, 0), Vector(10, 27.5, 0)), False)
sketch11.addGeometry(Part.LineSegment(Vector(8.5, 7.5, 0), Vector(10, 9.5, 0)), False)
sketch11.addGeometry(Part.LineSegment(Vector(10, 9.5, 0), Vector(10, 7.5, 0)), False)
sketch11.addGeometry(Part.LineSegment(Vector(10, 7.5, 0), Vector(8.5, 7.5, 0)), False)
sketch11.addConstraint(Sketcher.Constraint("Coincident", 0, 2, 1, 1))
sketch11.addConstraint(Sketcher.Constraint("Coincident", 1, 2, 2, 1))
sketch11.addConstraint(Sketcher.Constraint("Coincident", 2, 2, 0, 1))
sketch11.addConstraint(Sketcher.Constraint("Coincident", 3, 2, 4, 1))
sketch11.addConstraint(Sketcher.Constraint("Coincident", 4, 2, 5, 1))
sketch11.addConstraint(Sketcher.Constraint("Coincident", 5, 2, 3, 1))
sketch11.addConstraint(Sketcher.Constraint("Vertical", 1))
sketch11.addConstraint(Sketcher.Constraint("Horizontal", 2))
sketch11.addConstraint(Sketcher.Constraint("Vertical", 4))
sketch11.addConstraint(Sketcher.Constraint("Horizontal", 5))
sketch11.addConstraint(Sketcher.Constraint("Parallel", 0, 3))
sketch11.addConstraint(Sketcher.Constraint("Vertical", 2, 2, 3, 2))
sketch11.addConstraint(Sketcher.Constraint("Equal", 2, 5))
sketch11.addConstraint(Sketcher.Constraint("DistanceY", 1, 2, 1, 1, Q("2 mm")))
sketch11.addConstraint(Sketcher.Constraint("DistanceX", 2, 2, 2, 1, Q("1.5 mm")))
sketch11.addConstraint(Sketcher.Constraint("DistanceX", -1, 1, 2, 2, Q("10 mm")))
sketch11.addConstraint(Sketcher.Constraint("DistanceY", 3, 2, 2, 2, Q("18 mm")))
sketch11.addConstraint(Sketcher.Constraint("DistanceY", -1, 1, 0, 2, Q("29.5 mm")))
sketch11.setExpression("Constraints[13]", "Params.sketch11_height")
sketch11.setExpression("Constraints[14]", "Params.sketch11_width")
pad6 = doc.addObject("PartDesign::Pad", "Pad005")
body.addObject(pad6)
pad6.Profile = sketch11
pad6.setExpression("Length", "Params.pad6_length")

# Sketch on XZ plane
sketch12 = doc.addObject("Sketcher::SketchObject", "Sketch011")
body.addObject(sketch12)
sketch12.AttachmentSupport = (doc.XZ_Plane, [""])
sketch12.MapMode = "FlatFace"
sketch12.AttachmentOffset = App.Placement(Vector(0, 0, -14.5), App.Rotation())
sketch12.addGeometry(Part.LineSegment(Vector(6, 35, 0), Vector(6, 33, 0)), False)
sketch12.addGeometry(Part.LineSegment(Vector(6, 33, 0), Vector(-6, 33, 0)), False)
sketch12.addGeometry(Part.LineSegment(Vector(-6, 33, 0), Vector(-6, 35, 0)), False)
sketch12.addGeometry(Part.LineSegment(Vector(-6, 35, 0), Vector(6, 35, 0)), False)
sketch12.addConstraint(Sketcher.Constraint("Coincident", 0, 2, 1, 1))
sketch12.addConstraint(Sketcher.Constraint("Coincident", 1, 2, 2, 1))
sketch12.addConstraint(Sketcher.Constraint("Coincident", 2, 2, 3, 1))
sketch12.addConstraint(Sketcher.Constraint("Coincident", 3, 2, 0, 1))
sketch12.addConstraint(Sketcher.Constraint("Vertical", 0))
sketch12.addConstraint(Sketcher.Constraint("Horizontal", 1))
sketch12.addConstraint(Sketcher.Constraint("Vertical", 2))
sketch12.addConstraint(Sketcher.Constraint("Horizontal", 3))
sketch12.addConstraint(Sketcher.Constraint("DistanceX", 1, 2, 1, 1, Q("12 mm")))
sketch12.addConstraint(Sketcher.Constraint("DistanceY", 0, 2, 0, 1, Q("2 mm")))
sketch12.addConstraint(Sketcher.Constraint("DistanceX", -1, 1, 0, 2, Q("6 mm")))
sketch12.addConstraint(Sketcher.Constraint("DistanceY", -1, 1, 0, 2, Q("33 mm")))
sketch12.setExpression("Constraints[8]", "Params.sketch12_width")
sketch12.setExpression("Constraints[9]", "Params.sketch12_height")
pad7 = doc.addObject("PartDesign::Pad", "Pad006")
body.addObject(pad7)
pad7.Profile = sketch12
pad7.setExpression("Length", "Params.pad7_length")
pad7.Reversed = True

# Sketch on XY plane
sketch13 = doc.addObject("Sketcher::SketchObject", "Sketch012")
body.addObject(sketch13)
sketch13.AttachmentSupport = (doc.XY_Plane, [""])
sketch13.MapMode = "FlatFace"
sketch13.AttachmentOffset = App.Placement(Vector(0, 0, 35), App.Rotation())
sketch13.addGeometry(Part.LineSegment(Vector(-4, 16.8, 0), Vector(-4, 15, 0)), False)
sketch13.addGeometry(Part.LineSegment(Vector(-4, 15, 0), Vector(4, 15, 0)), False)
sketch13.addGeometry(Part.LineSegment(Vector(4, 15, 0), Vector(4, 16.8, 0)), False)
sketch13.addGeometry(Part.LineSegment(Vector(4, 16.8, 0), Vector(-4, 16.8, 0)), False)
sketch13.addConstraint(Sketcher.Constraint("Coincident", 0, 2, 1, 1))
sketch13.addConstraint(Sketcher.Constraint("Coincident", 1, 2, 2, 1))
sketch13.addConstraint(Sketcher.Constraint("Coincident", 2, 2, 3, 1))
sketch13.addConstraint(Sketcher.Constraint("Coincident", 3, 2, 0, 1))
sketch13.addConstraint(Sketcher.Constraint("Vertical", 0))
sketch13.addConstraint(Sketcher.Constraint("Horizontal", 1))
sketch13.addConstraint(Sketcher.Constraint("Vertical", 2))
sketch13.addConstraint(Sketcher.Constraint("Horizontal", 3))
sketch13.addConstraint(Sketcher.Constraint("DistanceX", 1, 1, 1, 2, Q("8 mm")))
sketch13.addConstraint(Sketcher.Constraint("DistanceX", 0, 2, -1, 1, Q("4 mm")))
sketch13.addConstraint(Sketcher.Constraint("DistanceY", -1, 1, 0, 2, Q("15 mm")))
sketch13.addConstraint(Sketcher.Constraint("DistanceY", 0, 2, 0, 1, Q("1.75 mm")))
sketch13.setExpression("Constraints[8]", "Params.sketch13_width")
sketch13.setExpression("Constraints[11]", "Params.sketch13_height")
pocket6 = doc.addObject("PartDesign::Pocket", "Pocket005")
body.addObject(pocket6)
pocket6.Profile = sketch13
pocket6.setExpression("Length", "Params.pocket6_length")
doc.recompute()

mirrored2 = doc.addObject("PartDesign::Mirrored", "Mirrored001")
body.addObject(mirrored2)
mirrored2.Originals = [pad7, pocket6]
mirrored2.MirrorPlane = (doc.XZ_Plane, [""])
body.Tip = mirrored2
doc.recompute()

fillet3 = doc.addObject("PartDesign::Fillet", "Fillet002")
body.addObject(fillet3)
fillet3.Base = (mirrored2, edges_at(mirrored2, [
    (6, 14.5, 34),
    (-6, 14.5, 34),
    (6, 18.5, 34),
    (-6, 18.5, 34),
    (6, -18.5, 34),
    (-6, -18.5, 34),
    (6, -14.5, 34),
    (-6, -14.5, 34),
]))
fillet3.setExpression("Radius", "Params.fillet3_radius")

# Sketch on YZ plane
sketch14 = doc.addObject("Sketcher::SketchObject", "Sketch013")
body.addObject(sketch14)
sketch14.AttachmentSupport = (doc.YZ_Plane, [""])
sketch14.MapMode = "FlatFace"
sketch14.AttachmentOffset = App.Placement(Vector(0, 0, -16), App.Rotation())
sketch14.addGeometry(Part.Circle(Vector(-3, 23, 0), Vector(0, 0, 1), 6), False)
sketch14.addConstraint(Sketcher.Constraint("Diameter", 0, Q("11 mm")))
sketch14.addConstraint(Sketcher.Constraint("DistanceX", 0, 3, -1, 1, Q("2.89 mm")))
sketch14.addConstraint(Sketcher.Constraint("DistanceY", -1, 1, 0, 3, Q("23.015 mm")))
sketch14.setExpression("Constraints[0]", "Params.sketch14_diameter")
pocket7 = doc.addObject("PartDesign::Pocket", "Pocket006")
body.addObject(pocket7)
pocket7.Profile = sketch14
pocket7.setExpression("Length", "Params.pocket7_length")
pocket7.Reversed = True

doc.recompute()
